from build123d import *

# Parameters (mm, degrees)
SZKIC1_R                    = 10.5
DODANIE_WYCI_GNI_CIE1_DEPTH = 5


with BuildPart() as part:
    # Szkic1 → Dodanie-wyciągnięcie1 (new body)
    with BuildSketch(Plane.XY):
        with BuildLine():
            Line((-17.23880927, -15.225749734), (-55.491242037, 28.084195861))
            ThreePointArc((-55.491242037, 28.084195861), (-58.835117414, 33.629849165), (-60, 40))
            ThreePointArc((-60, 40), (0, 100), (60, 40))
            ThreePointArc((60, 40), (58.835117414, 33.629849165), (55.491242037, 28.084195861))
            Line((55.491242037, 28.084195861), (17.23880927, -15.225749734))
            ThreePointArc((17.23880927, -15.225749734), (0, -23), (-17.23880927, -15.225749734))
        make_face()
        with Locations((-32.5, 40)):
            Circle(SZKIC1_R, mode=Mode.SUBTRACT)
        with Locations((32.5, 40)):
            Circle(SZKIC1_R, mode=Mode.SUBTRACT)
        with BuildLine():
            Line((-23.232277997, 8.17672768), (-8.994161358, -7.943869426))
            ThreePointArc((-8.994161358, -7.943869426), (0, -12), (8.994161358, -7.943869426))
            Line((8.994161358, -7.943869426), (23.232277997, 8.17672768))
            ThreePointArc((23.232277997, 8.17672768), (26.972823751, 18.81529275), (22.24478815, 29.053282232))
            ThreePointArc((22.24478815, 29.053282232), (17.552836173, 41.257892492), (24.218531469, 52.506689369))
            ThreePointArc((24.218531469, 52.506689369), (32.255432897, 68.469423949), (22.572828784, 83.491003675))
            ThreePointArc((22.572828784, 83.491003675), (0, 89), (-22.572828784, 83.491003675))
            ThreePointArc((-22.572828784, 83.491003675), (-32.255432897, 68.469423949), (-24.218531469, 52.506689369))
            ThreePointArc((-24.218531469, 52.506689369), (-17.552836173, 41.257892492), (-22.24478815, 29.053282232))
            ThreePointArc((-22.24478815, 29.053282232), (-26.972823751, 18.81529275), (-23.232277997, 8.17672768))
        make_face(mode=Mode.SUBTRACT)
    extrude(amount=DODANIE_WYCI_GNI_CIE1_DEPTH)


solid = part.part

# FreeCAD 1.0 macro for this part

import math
import FreeCAD as App
import Part
import Sketcher
Q = App.Units.Quantity

doc = App.newDocument("Part")
body = doc.addObject("PartDesign::Body", "Body")

# Sketch on XY plane
sketch1 = body.newObject("Sketcher::SketchObject", "Sketch")
sketch1.AttachmentSupport = (doc.getObject("XY_Plane"), [""])
sketch1.MapMode = "FlatFace"
sketch1.addGeometry(Part.LineSegment(App.Vector(-55, 28, 0), App.Vector(-17, -15, 0)), False)
sketch1.addGeometry(Part.ArcOfCircle(Part.Circle(App.Vector(0, 0, 0), App.Vector(0, 0, 1), 23), math.radians(-139), math.radians(-41)), False)
sketch1.addGeometry(Part.LineSegment(App.Vector(17, -15, 0), App.Vector(55, 28, 0)), False)
sketch1.addGeometry(Part.ArcOfCircle(Part.Circle(App.Vector(42, 40, 0), App.Vector(0, 0, 1), 18), math.radians(-41), math.radians(0)), False)
sketch1.addGeometry(Part.ArcOfCircle(Part.Circle(App.Vector(0, 40, 0), App.Vector(0, 0, 1), 60), math.radians(0), math.radians(180)), False)
sketch1.addGeometry(Part.ArcOfCircle(Part.Circle(App.Vector(-42, 40, 0), App.Vector(0, 0, 1), 18), math.radians(180), math.radians(221)), False)
sketch1.addGeometry(Part.Circle(App.Vector(32, 40, 0), App.Vector(0, 0, 1), 10), False)
sketch1.addGeometry(Part.ArcOfCircle(Part.Circle(App.Vector(-12, 18, 0), App.Vector(0, 0, 1), 15), math.radians(133), math.radians(221)), False)
sketch1.addGeometry(Part.ArcOfCircle(Part.Circle(App.Vector(-32, 40, 0), App.Vector(0, 0, 1), 15), math.radians(-47), math.radians(56)), False)
sketch1.addGeometry(Part.ArcOfCircle(Part.Circle(App.Vector(-14, 68, 0), App.Vector(0, 0, 1), 18), math.radians(117), math.radians(236)), False)
sketch1.addGeometry(Part.ArcOfCircle(Part.Circle(App.Vector(0, 40, 0), App.Vector(0, 0, 1), 49), math.radians(63), math.radians(117)), False)
sketch1.addGeometry(Part.ArcOfCircle(Part.Circle(App.Vector(14, 68, 0), App.Vector(0, 0, 1), 18), math.radians(-56), math.radians(63)), False)
sketch1.addGeometry(Part.ArcOfCircle(Part.Circle(App.Vector(32, 40, 0), App.Vector(0, 0, 1), 15), math.radians(124), math.radians(227)), False)
sketch1.addGeometry(Part.ArcOfCircle(Part.Circle(App.Vector(12, 18, 0), App.Vector(0, 0, 1), 15), math.radians(-41), math.radians(47)), False)
sketch1.addGeometry(Part.LineSegment(App.Vector(23, 8, 0), App.Vector(9, -8, 0)), False)
sketch1.addGeometry(Part.ArcOfCircle(Part.Circle(App.Vector(0, 0, 0), App.Vector(0, 0, 1), 12), math.radians(-139), math.radians(-41)), False)
sketch1.addGeometry(Part.LineSegment(App.Vector(-9, -8, 0), App.Vector(-23, 8, 0)), False)
sketch1.addGeometry(Part.Circle(App.Vector(-32, 40, 0), App.Vector(0, 0, 1), 10), False)
sketch1.addConstraint(Sketcher.Constraint("Tangent", 0, 2, 1, 1))
sketch1.addConstraint(Sketcher.Constraint("Tangent", 1, 2, 2, 1))
sketch1.addConstraint(Sketcher.Constraint("Tangent", 2, 2, 3, 1))
sketch1.addConstraint(Sketcher.Constraint("Tangent", 3, 2, 4, 1))
sketch1.addConstraint(Sketcher.Constraint("Tangent", 4, 2, 5, 1))
sketch1.addConstraint(Sketcher.Constraint("Tangent", 5, 2, 0, 1))
sketch1.addConstraint(Sketcher.Constraint("Tangent", 7, 1, 8, 1))
sketch1.addConstraint(Sketcher.Constraint("Tangent", 8, 2, 9, 2))
sketch1.addConstraint(Sketcher.Constraint("Tangent", 9, 1, 10, 2))
sketch1.addConstraint(Sketcher.Constraint("Tangent", 10, 1, 11, 2))
sketch1.addConstraint(Sketcher.Constraint("Tangent", 11, 1, 12, 1))
sketch1.addConstraint(Sketcher.Constraint("Tangent", 12, 2, 13, 2))
sketch1.addConstraint(Sketcher.Constraint("Tangent", 13, 1, 14, 1))
sketch1.addConstraint(Sketcher.Constraint("Tangent", 14, 2, 15, 2))
sketch1.addConstraint(Sketcher.Constraint("Tangent", 15, 1, 16, 1))
sketch1.addConstraint(Sketcher.Constraint("Tangent", 16, 2, 7, 2))
sketch1.addConstraint(Sketcher.Constraint("Coincident", 1, 3, -1, 1))
sketch1.addConstraint(Sketcher.Constraint("Coincident", 15, 3, -1, 1))
sketch1.addConstraint(Sketcher.Constraint("Coincident", 10, 3, 4, 3))
sketch1.addConstraint(Sketcher.Constraint("Coincident", 12, 3, 6, 3))
sketch1.addConstraint(Sketcher.Constraint("Coincident", 17, 3, 8, 3))
sketch1.addConstraint(Sketcher.Constraint("Equal", 3, 5))
sketch1.addConstraint(Sketcher.Constraint("Equal", 7, 8))
sketch1.addConstraint(Sketcher.Constraint("Equal", 5, 9))
sketch1.addConstraint(Sketcher.Constraint("Equal", 9, 11))
sketch1.addConstraint(Sketcher.Constraint("Equal", 8, 12))
sketch1.addConstraint(Sketcher.Constraint("Equal", 12, 13))
sketch1.addConstraint(Sketcher.Constraint("Equal", 6, 17))
sketch1.addConstraint(Sketcher.Constraint("Symmetric", 3, 3, 5, 3, -2))
sketch1.addConstraint(Sketcher.Constraint("Symmetric", 6, 3, 8, 3, -2))
sketch1.addConstraint(Sketcher.Constraint("Parallel", 2, 14))
sketch1.addConstraint(Sketcher.Constraint("Parallel", 0, 16))
sketch1.addConstraint(Sketcher.Constraint("Horizontal", 3, 3, 4, 3))
sketch1.addConstraint(Sketcher.Constraint("Horizontal", 5, 3, 6, 3))
sketch1.addConstraint(Sketcher.Constraint("Diameter", 6, Q("21 mm")))
sketch1.addConstraint(Sketcher.Constraint("Radius", 1, Q("23 mm")))
sketch1.addConstraint(Sketcher.Constraint("Radius", 3, Q("18 mm")))
sketch1.addConstraint(Sketcher.Constraint("Radius", 4, Q("60 mm")))
sketch1.addConstraint(Sketcher.Constraint("Radius", 7, Q("15 mm")))
sketch1.addConstraint(Sketcher.Constraint("Radius", 10, Q("49 mm")))
sketch1.addConstraint(Sketcher.Constraint("Radius", 15, Q("12 mm")))
sketch1.addConstraint(Sketcher.Constraint("DistanceY", -1, 1, 3, 3, Q("40 mm")))
sketch1.addConstraint(Sketcher.Constraint("DistanceX", 8, 3, 6, 3, Q("65 mm")))
pad1 = body.newObject("PartDesign::Pad", "Pad")
pad1.Profile = sketch1
pad1.Length = 5

doc.recompute()
